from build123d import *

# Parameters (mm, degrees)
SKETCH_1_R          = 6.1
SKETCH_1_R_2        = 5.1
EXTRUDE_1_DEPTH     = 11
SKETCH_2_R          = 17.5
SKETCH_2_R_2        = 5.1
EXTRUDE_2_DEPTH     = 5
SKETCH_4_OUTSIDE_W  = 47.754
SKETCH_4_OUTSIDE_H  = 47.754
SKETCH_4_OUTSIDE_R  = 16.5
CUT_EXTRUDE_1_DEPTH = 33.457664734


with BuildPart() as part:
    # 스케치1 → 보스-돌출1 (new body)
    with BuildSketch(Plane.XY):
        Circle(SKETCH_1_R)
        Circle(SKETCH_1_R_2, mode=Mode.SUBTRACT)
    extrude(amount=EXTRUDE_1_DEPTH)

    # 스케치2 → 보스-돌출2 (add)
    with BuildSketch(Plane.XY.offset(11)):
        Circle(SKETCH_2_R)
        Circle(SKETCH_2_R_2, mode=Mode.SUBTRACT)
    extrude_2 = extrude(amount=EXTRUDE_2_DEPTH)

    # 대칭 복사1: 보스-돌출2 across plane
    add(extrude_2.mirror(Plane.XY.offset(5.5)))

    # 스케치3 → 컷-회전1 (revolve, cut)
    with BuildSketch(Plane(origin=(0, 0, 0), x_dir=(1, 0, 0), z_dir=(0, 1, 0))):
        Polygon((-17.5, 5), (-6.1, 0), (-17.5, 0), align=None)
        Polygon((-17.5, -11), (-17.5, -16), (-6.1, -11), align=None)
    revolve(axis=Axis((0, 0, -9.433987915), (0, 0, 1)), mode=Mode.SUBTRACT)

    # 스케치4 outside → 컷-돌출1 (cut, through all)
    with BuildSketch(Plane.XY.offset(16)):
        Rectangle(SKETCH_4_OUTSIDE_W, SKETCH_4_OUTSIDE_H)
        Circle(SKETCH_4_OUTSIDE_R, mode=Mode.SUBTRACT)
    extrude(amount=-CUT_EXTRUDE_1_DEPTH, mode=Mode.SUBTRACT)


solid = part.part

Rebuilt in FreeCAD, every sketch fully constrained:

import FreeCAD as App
import Part
import Sketcher
from FreeCAD import Vector


def add_polygon(sketch, points):
    """Adds a closed chain of lines whose ends are joined by coincident constraints."""
    first, n = sketch.GeometryCount, len(points)
    for a, b in zip(points, points[1:] + points[:1]):
        sketch.addGeometry(Part.LineSegment(App.Vector(*a, 0), App.Vector(*b, 0)), False)
    for i in range(n):
        sketch.addConstraint(Sketcher.Constraint("Coincident", first + i, 2, first + (i + 1) % n, 1))

doc = App.newDocument("Part")
body = doc.addObject("PartDesign::Body", "Body")

# Sketch on XY plane
sketch1 = body.newObject("Sketcher::SketchObject", "Sketch")
sketch1.AttachmentSupport = (doc.getObject("XY_Plane"), [""])
sketch1.MapMode = "FlatFace"
sketch1.addGeometry([
    Part.Circle(Vector(0, 0, 0), Vector(0, 0, 1), 6),
    Part.Circle(Vector(0, 0, 0), Vector(0, 0, 1), 5),
], False)
sketch1.addConstraint([
    Sketcher.Constraint("Coincident", 0, 3, -1, 1),
    Sketcher.Constraint("Coincident", 1, 3, -1, 1),
    Sketcher.Constraint("Diameter", 0, 12.2),
    Sketcher.Constraint("Diameter", 1, 10.2),
])
pad1 = body.newObject("PartDesign::Pad", "Pad")
pad1.Profile = sketch1
pad1.Length = 11

# Sketch on XY plane
sketch2 = body.newObject("Sketcher::SketchObject", "Sketch001")
sketch2.AttachmentSupport = (doc.getObject("XY_Plane"), [""])
sketch2.MapMode = "FlatFace"
sketch2.AttachmentOffset = App.Placement(Vector(0, 0, 11), App.Rotation())
sketch2.addGeometry([
    Part.Circle(Vector(0, 0, 0), Vector(0, 0, 1), 18),
    Part.Circle(Vector(0, 0, 0), Vector(0, 0, 1), 5),
], False)
sketch2.addConstraint([
    Sketcher.Constraint("Coincident", 0, 3, -1, 1),
    Sketcher.Constraint("Coincident", 1, 3, -1, 1),
    Sketcher.Constraint("Diameter", 0, 35.0),
    Sketcher.Constraint("Diameter", 1, 10.2),
])
pad2 = body.newObject("PartDesign::Pad", "Pad001")
pad2.Profile = sketch2
pad2.Length = 5
doc.recompute()

datumplane = body.newObject("PartDesign::Plane", "DatumPlane")
datumplane.AttachmentSupport = (doc.getObject("XY_Plane"), [""])
datumplane.MapMode = "FlatFace"
datumplane.AttachmentOffset = App.Placement(Vector(0, 0, 5.5), App.Rotation())
mirrored = body.newObject("PartDesign::Mirrored", "Mirrored")
mirrored.Originals = [pad2]
mirrored.MirrorPlane = (datumplane, [""])
body.Tip = mirrored

# Sketch on XZ plane
sketch3 = body.newObject("Sketcher::SketchObject", "Sketch002")
sketch3.AttachmentSupport = (doc.getObject("XZ_Plane"), [""])
sketch3.MapMode = "FlatFace"
add_polygon(sketch3, [(-6, 0), (-18, -5), (-18, 0)])  # lines 0-2
add_polygon(sketch3, [(-18, 11), (-18, 16), (-6, 11)])  # lines 3-5
sketch3.addConstraint([
    Sketcher.Constraint("Vertical", 1),
    Sketcher.Constraint("Horizontal", 2),
    Sketcher.Constraint("Vertical", 3),
    Sketcher.Constraint("Horizontal", 5),
    Sketcher.Constraint("PointOnObject", 1, 2, -1),
    Sketcher.Constraint("Vertical", 1, 2, 3, 2),
    Sketcher.Constraint("Vertical", 2, 2, 4, 2),
    Sketcher.Constraint("Equal", 1, 3),
    Sketcher.Constraint("DistanceY", 1, 1, 1, 2, 5.0),
    Sketcher.Constraint("DistanceX", 2, 1, 2, 2, 11.4),
    Sketcher.Constraint("DistanceY", -1, 1, 3, 2, 16.0),
    Sketcher.Constraint("DistanceX", 0, 2, -1, 1, 17.5),
])
groove = body.newObject("PartDesign::Groove", "Groove")
groove.Profile = sketch3
groove.ReferenceAxis = (sketch3, ["V_Axis"])
groove.Angle = 360

# Sketch on XY plane
sketch4 = body.newObject("Sketcher::SketchObject", "Sketch003")
sketch4.AttachmentSupport = (doc.getObject("XY_Plane"), [""])
sketch4.MapMode = "FlatFace"
sketch4.AttachmentOffset = App.Placement(Vector(0, 0, 16), App.Rotation())
add_polygon(sketch4, [(-24, 24), (-24, -24), (24, -24), (24, 24)])  # lines 0-3
sketch4.addGeometry(Part.Circle(Vector(0, 0, 0), Vector(0, 0, 1), 16), False)  # 4
sketch4.addConstraint([
    Sketcher.Constraint("Vertical", 0),
    Sketcher.Constraint("Horizontal", 1),
    Sketcher.Constraint("Vertical", 2),
    Sketcher.Constraint("Horizontal", 3),
    Sketcher.Constraint("Coincident", 4, 3, -1, 1),
    Sketcher.Constraint("Symmetric", 0, 2, 2, 2, -1, 1),
    Sketcher.Constraint("Equal", 3, 0),
    Sketcher.Constraint("Diameter", 4, 33.0),
    Sketcher.Constraint("DistanceX", 1, 1, 1, 2, 47.754),
])
pocket1 = body.newObject("PartDesign::Pocket", "Pocket")
pocket1.Profile = sketch4
pocket1.Type = "ThroughAll"

doc.recompute()
